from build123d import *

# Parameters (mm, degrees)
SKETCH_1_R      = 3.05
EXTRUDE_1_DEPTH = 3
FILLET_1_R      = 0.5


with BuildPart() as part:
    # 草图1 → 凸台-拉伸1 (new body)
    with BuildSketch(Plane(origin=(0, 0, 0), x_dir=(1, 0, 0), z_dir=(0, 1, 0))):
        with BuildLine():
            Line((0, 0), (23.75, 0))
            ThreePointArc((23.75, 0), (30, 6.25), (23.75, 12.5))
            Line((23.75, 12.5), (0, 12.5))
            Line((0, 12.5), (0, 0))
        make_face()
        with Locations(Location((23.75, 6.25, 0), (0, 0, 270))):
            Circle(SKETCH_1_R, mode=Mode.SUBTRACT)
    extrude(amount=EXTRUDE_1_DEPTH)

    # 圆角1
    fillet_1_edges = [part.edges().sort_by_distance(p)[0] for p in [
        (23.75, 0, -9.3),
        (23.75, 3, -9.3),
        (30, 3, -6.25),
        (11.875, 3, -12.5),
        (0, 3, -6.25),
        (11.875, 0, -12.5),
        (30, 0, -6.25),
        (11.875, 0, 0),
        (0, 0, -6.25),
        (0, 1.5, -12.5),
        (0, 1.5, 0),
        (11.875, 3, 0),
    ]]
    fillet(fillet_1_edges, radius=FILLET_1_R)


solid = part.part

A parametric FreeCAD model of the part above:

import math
import FreeCAD as App
import Part
import Sketcher
from FreeCAD import Vector
Q = App.Units.Quantity

doc = App.newDocument("Part")
body = doc.addObject("PartDesign::Body", "Body")

sketch1 = doc.addObject("Sketcher::SketchObject", "Sketch")
body.addObject(sketch1)
sketch1.AttachmentSupport = (doc.XZ_Plane, [""])
sketch1.MapMode = "FlatFace"
sketch1.addGeometry([
    Part.LineSegment(Vector(0, 0, 0), Vector(23.8, 0, 0)),
    Part.ArcOfCircle(Part.Circle(Vector(23.8, -6.2, 0), Vector(0, 0, 1), 6.2), math.radians(-90), math.radians(90)),
    Part.LineSegment(Vector(23.8, -12.5, 0), Vector(0, -12.5, 0)),
    Part.LineSegment(Vector(0, -12.5, 0), Vector(0, 0, 0)),
    Part.Circle(Vector(23.8, -6.2, 0), Vector(0, 0, 1), 3),
], False)
sketch1.addConstraint([
    Sketcher.Constraint("Tangent", 0, 2, 1, 2),
    Sketcher.Constraint("Tangent", 1, 1, 2, 1),
    Sketcher.Constraint("Coincident", 2, 2, 3, 1),
    Sketcher.Constraint("Coincident", 3, 2, 0, 1),
    Sketcher.Constraint("Horizontal", 0),
    Sketcher.Constraint("Horizontal", 2),
    Sketcher.Constraint("Vertical", 3),
    Sketcher.Constraint("Coincident", 3, 2, -1, 1),
    Sketcher.Constraint("Coincident", 4, 3, 1, 3),
    Sketcher.Constraint("Diameter", 4, Q("6.1 mm")),
    Sketcher.Constraint("Radius", 1, Q("6.25 mm")),
    Sketcher.Constraint("DistanceX", 0, 1, 0, 2, Q("23.75 mm")),
])
pad1 = doc.addObject("PartDesign::Pad", "Pad")
body.addObject(pad1)
pad1.Profile = sketch1
pad1.Length = 3
pad1.Reversed = True
doc.recompute()

fillet = doc.addObject("PartDesign::Fillet", "Fillet")
body.addObject(fillet)
fillet.Base = (pad1, ["Edge1"])
fillet.UseAllEdges = True
fillet.Radius = 0.5

doc.recompute()
